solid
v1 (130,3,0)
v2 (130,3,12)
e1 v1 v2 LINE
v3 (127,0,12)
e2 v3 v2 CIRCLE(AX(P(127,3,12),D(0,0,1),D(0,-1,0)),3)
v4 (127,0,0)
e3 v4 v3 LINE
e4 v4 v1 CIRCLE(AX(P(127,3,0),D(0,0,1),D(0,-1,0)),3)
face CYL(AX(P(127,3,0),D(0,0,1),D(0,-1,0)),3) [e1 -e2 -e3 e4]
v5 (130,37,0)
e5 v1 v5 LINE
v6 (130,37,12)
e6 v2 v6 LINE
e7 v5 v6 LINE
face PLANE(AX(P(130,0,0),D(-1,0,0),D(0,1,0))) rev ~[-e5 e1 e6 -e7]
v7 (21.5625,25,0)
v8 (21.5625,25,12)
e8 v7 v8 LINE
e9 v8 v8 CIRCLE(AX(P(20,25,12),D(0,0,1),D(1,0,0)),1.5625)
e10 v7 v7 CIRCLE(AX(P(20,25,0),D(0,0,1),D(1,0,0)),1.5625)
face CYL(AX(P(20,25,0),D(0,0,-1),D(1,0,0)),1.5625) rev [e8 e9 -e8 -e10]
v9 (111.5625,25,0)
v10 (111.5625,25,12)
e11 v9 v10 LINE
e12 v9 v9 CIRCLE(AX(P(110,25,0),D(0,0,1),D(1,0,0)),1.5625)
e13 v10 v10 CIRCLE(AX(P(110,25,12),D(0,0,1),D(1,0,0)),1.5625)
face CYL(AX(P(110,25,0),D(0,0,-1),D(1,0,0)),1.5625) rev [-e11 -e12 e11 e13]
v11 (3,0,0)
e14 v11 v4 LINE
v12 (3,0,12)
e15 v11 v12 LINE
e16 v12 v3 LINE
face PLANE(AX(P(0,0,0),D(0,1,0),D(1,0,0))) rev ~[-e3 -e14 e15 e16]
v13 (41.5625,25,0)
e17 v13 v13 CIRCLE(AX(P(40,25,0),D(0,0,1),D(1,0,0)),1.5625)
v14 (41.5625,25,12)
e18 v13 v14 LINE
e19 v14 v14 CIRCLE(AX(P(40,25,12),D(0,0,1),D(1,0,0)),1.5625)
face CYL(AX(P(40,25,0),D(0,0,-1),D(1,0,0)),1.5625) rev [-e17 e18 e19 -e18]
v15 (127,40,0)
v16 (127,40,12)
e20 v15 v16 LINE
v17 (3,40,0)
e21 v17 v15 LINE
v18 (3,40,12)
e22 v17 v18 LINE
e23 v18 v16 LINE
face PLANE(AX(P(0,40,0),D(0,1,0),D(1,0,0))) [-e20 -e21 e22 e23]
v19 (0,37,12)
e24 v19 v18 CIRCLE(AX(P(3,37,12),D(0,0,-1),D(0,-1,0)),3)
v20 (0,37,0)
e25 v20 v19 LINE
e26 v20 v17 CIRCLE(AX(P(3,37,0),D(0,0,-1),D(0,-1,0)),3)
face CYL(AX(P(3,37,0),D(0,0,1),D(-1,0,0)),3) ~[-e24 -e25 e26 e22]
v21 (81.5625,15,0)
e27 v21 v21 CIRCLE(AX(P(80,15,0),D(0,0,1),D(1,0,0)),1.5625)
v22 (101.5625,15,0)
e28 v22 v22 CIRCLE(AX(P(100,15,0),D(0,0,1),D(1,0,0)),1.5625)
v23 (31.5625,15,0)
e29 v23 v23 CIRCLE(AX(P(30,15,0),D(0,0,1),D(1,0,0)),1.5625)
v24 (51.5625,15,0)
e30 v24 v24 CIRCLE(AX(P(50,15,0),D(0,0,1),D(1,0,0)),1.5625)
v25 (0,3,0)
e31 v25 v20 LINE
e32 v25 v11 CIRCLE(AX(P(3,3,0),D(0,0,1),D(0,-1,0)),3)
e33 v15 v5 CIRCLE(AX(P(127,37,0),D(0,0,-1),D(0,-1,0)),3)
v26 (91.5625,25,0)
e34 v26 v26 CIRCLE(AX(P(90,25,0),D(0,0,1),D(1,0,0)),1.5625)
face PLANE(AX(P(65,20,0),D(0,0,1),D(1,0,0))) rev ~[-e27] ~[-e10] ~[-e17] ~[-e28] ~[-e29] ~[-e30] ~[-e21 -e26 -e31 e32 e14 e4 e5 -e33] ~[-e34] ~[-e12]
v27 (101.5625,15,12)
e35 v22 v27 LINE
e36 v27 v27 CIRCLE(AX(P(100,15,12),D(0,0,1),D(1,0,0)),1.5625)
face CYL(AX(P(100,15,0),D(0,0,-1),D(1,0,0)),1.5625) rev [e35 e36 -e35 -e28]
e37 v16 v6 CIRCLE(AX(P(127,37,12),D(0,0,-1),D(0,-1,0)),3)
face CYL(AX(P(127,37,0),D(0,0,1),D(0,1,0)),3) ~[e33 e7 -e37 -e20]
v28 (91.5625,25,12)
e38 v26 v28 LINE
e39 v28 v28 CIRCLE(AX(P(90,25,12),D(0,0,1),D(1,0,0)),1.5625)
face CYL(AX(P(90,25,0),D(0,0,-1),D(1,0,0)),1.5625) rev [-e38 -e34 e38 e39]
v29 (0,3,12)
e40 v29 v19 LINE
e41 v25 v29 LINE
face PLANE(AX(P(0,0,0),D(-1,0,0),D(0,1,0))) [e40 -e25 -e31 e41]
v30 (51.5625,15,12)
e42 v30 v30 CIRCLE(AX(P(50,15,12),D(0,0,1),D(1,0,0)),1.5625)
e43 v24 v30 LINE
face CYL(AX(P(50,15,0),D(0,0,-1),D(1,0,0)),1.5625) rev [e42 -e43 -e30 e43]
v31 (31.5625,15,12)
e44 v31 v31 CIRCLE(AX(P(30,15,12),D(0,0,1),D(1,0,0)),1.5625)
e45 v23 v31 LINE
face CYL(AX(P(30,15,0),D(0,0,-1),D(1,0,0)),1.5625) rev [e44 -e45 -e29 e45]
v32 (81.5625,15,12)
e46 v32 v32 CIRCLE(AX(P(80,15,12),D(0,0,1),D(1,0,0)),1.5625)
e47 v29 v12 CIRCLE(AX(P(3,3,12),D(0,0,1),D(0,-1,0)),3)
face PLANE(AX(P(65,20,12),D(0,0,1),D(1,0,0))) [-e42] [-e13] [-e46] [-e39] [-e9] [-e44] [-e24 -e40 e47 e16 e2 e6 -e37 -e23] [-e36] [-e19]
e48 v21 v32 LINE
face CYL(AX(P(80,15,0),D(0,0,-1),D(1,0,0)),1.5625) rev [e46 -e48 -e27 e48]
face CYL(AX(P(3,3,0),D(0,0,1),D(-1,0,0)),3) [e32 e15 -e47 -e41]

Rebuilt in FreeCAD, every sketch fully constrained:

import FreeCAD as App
import Part
import Sketcher

V = App.Vector
Q = App.Units.Quantity


def edges_at(feature, points):
    """Names of the edges that pass closest to the given points."""
    edges = feature.Shape.Edges
    near = lambda p: min(range(len(edges)), key=lambda i: edges[i].distToShape(Part.Vertex(*p))[0])
    return sorted({f"Edge{near(p) + 1}" for p in points})

doc = App.newDocument("Part")
body = doc.addObject("PartDesign::Body", "Body")

# Sketch on XY plane
sketch1 = doc.addObject("Sketcher::SketchObject", "Sketch")
body.addObject(sketch1)
sketch1.AttachmentSupport = (doc.XY_Plane, [""])
sketch1.MapMode = "FlatFace"
sketch1.addGeometry(Part.LineSegment(V(0, 40, 0), V(0, 0, 0)), False)
sketch1.addGeometry(Part.LineSegment(V(0, 0, 0), V(130, 0, 0)), False)
sketch1.addGeometry(Part.LineSegment(V(130, 0, 0), V(130, 40, 0)), False)
sketch1.addGeometry(Part.LineSegment(V(130, 40, 0), V(0, 40, 0)), False)
sketch1.addGeometry(Part.Circle(V(30, 15, 0), V(0, 0, 1), 1.5625), False)
sketch1.addGeometry(Part.Circle(V(50, 15, 0), V(0, 0, 1), 1.5625), False)
sketch1.addGeometry(Part.Circle(V(80, 15, 0), V(0, 0, 1), 1.5625), False)
sketch1.addGeometry(Part.Circle(V(100, 15, 0), V(0, 0, 1), 1.5625), False)
sketch1.addGeometry(Part.Circle(V(20, 25, 0), V(0, 0, 1), 1.5625), False)
sketch1.addGeometry(Part.Circle(V(40, 25, 0), V(0, 0, 1), 1.5625), False)
sketch1.addGeometry(Part.Circle(V(90, 25, 0), V(0, 0, 1), 1.5625), False)
sketch1.addGeometry(Part.Circle(V(110, 25, 0), V(0, 0, 1), 1.5625), False)
sketch1.addConstraint(Sketcher.Constraint("Coincident", 0, 2, 1, 1))
sketch1.addConstraint(Sketcher.Constraint("Coincident", 1, 2, 2, 1))
sketch1.addConstraint(Sketcher.Constraint("Coincident", 2, 2, 3, 1))
sketch1.addConstraint(Sketcher.Constraint("Coincident", 3, 2, 0, 1))
sketch1.addConstraint(Sketcher.Constraint("Vertical", 0))
sketch1.addConstraint(Sketcher.Constraint("Horizontal", 1))
sketch1.addConstraint(Sketcher.Constraint("Vertical", 2))
sketch1.addConstraint(Sketcher.Constraint("Horizontal", 3))
sketch1.addConstraint(Sketcher.Constraint("Coincident", 0, 2, -1, 1))
sketch1.addConstraint(Sketcher.Constraint("Equal", 4, 5))
sketch1.addConstraint(Sketcher.Constraint("Equal", 5, 6))
sketch1.addConstraint(Sketcher.Constraint("Equal", 6, 7))
sketch1.addConstraint(Sketcher.Constraint("Equal", 7, 8))
sketch1.addConstraint(Sketcher.Constraint("Equal", 8, 9))
sketch1.addConstraint(Sketcher.Constraint("Equal", 9, 10))
sketch1.addConstraint(Sketcher.Constraint("Equal", 10, 11))
sketch1.addConstraint(Sketcher.Constraint("Horizontal", 4, 3, 5, 3))
sketch1.addConstraint(Sketcher.Constraint("Horizontal", 5, 3, 6, 3))
sketch1.addConstraint(Sketcher.Constraint("Horizontal", 6, 3, 7, 3))
sketch1.addConstraint(Sketcher.Constraint("Horizontal", 8, 3, 9, 3))
sketch1.addConstraint(Sketcher.Constraint("Horizontal", 9, 3, 10, 3))
sketch1.addConstraint(Sketcher.Constraint("Horizontal", 10, 3, 11, 3))
sketch1.addConstraint(Sketcher.Constraint("DistanceX", 1, 1, 1, 2, Q("130 mm")))
sketch1.addConstraint(Sketcher.Constraint("DistanceY", 0, 2, 0, 1, Q("40 mm")))
sketch1.addConstraint(Sketcher.Constraint("Diameter", 4, Q("3.125 mm")))
sketch1.addConstraint(Sketcher.Constraint("DistanceX", -1, 1, 4, 3, Q("30 mm")))
sketch1.addConstraint(Sketcher.Constraint("DistanceY", -1, 1, 4, 3, Q("15 mm")))
sketch1.addConstraint(Sketcher.Constraint("DistanceX", -1, 1, 5, 3, Q("50 mm")))
sketch1.addConstraint(Sketcher.Constraint("DistanceX", -1, 1, 6, 3, Q("80 mm")))
sketch1.addConstraint(Sketcher.Constraint("DistanceX", -1, 1, 7, 3, Q("100 mm")))
sketch1.addConstraint(Sketcher.Constraint("DistanceX", -1, 1, 8, 3, Q("20 mm")))
sketch1.addConstraint(Sketcher.Constraint("DistanceY", -1, 1, 8, 3, Q("25 mm")))
sketch1.addConstraint(Sketcher.Constraint("DistanceX", -1, 1, 9, 3, Q("40 mm")))
sketch1.addConstraint(Sketcher.Constraint("DistanceX", -1, 1, 10, 3, Q("90 mm")))
sketch1.addConstraint(Sketcher.Constraint("DistanceX", -1, 1, 11, 3, Q("110 mm")))
pad1 = doc.addObject("PartDesign::Pad", "Pad")
body.addObject(pad1)
pad1.Profile = sketch1
pad1.Length = 12
doc.recompute()

fillet = doc.addObject("PartDesign::Fillet", "Fillet")
body.addObject(fillet)
fillet.Base = (pad1, edges_at(pad1, [
    (0, 0, 6),
    (130, 0, 6),
    (130, 40, 6),
    (0, 40, 6),
]))
fillet.Radius = 3

doc.recompute()
